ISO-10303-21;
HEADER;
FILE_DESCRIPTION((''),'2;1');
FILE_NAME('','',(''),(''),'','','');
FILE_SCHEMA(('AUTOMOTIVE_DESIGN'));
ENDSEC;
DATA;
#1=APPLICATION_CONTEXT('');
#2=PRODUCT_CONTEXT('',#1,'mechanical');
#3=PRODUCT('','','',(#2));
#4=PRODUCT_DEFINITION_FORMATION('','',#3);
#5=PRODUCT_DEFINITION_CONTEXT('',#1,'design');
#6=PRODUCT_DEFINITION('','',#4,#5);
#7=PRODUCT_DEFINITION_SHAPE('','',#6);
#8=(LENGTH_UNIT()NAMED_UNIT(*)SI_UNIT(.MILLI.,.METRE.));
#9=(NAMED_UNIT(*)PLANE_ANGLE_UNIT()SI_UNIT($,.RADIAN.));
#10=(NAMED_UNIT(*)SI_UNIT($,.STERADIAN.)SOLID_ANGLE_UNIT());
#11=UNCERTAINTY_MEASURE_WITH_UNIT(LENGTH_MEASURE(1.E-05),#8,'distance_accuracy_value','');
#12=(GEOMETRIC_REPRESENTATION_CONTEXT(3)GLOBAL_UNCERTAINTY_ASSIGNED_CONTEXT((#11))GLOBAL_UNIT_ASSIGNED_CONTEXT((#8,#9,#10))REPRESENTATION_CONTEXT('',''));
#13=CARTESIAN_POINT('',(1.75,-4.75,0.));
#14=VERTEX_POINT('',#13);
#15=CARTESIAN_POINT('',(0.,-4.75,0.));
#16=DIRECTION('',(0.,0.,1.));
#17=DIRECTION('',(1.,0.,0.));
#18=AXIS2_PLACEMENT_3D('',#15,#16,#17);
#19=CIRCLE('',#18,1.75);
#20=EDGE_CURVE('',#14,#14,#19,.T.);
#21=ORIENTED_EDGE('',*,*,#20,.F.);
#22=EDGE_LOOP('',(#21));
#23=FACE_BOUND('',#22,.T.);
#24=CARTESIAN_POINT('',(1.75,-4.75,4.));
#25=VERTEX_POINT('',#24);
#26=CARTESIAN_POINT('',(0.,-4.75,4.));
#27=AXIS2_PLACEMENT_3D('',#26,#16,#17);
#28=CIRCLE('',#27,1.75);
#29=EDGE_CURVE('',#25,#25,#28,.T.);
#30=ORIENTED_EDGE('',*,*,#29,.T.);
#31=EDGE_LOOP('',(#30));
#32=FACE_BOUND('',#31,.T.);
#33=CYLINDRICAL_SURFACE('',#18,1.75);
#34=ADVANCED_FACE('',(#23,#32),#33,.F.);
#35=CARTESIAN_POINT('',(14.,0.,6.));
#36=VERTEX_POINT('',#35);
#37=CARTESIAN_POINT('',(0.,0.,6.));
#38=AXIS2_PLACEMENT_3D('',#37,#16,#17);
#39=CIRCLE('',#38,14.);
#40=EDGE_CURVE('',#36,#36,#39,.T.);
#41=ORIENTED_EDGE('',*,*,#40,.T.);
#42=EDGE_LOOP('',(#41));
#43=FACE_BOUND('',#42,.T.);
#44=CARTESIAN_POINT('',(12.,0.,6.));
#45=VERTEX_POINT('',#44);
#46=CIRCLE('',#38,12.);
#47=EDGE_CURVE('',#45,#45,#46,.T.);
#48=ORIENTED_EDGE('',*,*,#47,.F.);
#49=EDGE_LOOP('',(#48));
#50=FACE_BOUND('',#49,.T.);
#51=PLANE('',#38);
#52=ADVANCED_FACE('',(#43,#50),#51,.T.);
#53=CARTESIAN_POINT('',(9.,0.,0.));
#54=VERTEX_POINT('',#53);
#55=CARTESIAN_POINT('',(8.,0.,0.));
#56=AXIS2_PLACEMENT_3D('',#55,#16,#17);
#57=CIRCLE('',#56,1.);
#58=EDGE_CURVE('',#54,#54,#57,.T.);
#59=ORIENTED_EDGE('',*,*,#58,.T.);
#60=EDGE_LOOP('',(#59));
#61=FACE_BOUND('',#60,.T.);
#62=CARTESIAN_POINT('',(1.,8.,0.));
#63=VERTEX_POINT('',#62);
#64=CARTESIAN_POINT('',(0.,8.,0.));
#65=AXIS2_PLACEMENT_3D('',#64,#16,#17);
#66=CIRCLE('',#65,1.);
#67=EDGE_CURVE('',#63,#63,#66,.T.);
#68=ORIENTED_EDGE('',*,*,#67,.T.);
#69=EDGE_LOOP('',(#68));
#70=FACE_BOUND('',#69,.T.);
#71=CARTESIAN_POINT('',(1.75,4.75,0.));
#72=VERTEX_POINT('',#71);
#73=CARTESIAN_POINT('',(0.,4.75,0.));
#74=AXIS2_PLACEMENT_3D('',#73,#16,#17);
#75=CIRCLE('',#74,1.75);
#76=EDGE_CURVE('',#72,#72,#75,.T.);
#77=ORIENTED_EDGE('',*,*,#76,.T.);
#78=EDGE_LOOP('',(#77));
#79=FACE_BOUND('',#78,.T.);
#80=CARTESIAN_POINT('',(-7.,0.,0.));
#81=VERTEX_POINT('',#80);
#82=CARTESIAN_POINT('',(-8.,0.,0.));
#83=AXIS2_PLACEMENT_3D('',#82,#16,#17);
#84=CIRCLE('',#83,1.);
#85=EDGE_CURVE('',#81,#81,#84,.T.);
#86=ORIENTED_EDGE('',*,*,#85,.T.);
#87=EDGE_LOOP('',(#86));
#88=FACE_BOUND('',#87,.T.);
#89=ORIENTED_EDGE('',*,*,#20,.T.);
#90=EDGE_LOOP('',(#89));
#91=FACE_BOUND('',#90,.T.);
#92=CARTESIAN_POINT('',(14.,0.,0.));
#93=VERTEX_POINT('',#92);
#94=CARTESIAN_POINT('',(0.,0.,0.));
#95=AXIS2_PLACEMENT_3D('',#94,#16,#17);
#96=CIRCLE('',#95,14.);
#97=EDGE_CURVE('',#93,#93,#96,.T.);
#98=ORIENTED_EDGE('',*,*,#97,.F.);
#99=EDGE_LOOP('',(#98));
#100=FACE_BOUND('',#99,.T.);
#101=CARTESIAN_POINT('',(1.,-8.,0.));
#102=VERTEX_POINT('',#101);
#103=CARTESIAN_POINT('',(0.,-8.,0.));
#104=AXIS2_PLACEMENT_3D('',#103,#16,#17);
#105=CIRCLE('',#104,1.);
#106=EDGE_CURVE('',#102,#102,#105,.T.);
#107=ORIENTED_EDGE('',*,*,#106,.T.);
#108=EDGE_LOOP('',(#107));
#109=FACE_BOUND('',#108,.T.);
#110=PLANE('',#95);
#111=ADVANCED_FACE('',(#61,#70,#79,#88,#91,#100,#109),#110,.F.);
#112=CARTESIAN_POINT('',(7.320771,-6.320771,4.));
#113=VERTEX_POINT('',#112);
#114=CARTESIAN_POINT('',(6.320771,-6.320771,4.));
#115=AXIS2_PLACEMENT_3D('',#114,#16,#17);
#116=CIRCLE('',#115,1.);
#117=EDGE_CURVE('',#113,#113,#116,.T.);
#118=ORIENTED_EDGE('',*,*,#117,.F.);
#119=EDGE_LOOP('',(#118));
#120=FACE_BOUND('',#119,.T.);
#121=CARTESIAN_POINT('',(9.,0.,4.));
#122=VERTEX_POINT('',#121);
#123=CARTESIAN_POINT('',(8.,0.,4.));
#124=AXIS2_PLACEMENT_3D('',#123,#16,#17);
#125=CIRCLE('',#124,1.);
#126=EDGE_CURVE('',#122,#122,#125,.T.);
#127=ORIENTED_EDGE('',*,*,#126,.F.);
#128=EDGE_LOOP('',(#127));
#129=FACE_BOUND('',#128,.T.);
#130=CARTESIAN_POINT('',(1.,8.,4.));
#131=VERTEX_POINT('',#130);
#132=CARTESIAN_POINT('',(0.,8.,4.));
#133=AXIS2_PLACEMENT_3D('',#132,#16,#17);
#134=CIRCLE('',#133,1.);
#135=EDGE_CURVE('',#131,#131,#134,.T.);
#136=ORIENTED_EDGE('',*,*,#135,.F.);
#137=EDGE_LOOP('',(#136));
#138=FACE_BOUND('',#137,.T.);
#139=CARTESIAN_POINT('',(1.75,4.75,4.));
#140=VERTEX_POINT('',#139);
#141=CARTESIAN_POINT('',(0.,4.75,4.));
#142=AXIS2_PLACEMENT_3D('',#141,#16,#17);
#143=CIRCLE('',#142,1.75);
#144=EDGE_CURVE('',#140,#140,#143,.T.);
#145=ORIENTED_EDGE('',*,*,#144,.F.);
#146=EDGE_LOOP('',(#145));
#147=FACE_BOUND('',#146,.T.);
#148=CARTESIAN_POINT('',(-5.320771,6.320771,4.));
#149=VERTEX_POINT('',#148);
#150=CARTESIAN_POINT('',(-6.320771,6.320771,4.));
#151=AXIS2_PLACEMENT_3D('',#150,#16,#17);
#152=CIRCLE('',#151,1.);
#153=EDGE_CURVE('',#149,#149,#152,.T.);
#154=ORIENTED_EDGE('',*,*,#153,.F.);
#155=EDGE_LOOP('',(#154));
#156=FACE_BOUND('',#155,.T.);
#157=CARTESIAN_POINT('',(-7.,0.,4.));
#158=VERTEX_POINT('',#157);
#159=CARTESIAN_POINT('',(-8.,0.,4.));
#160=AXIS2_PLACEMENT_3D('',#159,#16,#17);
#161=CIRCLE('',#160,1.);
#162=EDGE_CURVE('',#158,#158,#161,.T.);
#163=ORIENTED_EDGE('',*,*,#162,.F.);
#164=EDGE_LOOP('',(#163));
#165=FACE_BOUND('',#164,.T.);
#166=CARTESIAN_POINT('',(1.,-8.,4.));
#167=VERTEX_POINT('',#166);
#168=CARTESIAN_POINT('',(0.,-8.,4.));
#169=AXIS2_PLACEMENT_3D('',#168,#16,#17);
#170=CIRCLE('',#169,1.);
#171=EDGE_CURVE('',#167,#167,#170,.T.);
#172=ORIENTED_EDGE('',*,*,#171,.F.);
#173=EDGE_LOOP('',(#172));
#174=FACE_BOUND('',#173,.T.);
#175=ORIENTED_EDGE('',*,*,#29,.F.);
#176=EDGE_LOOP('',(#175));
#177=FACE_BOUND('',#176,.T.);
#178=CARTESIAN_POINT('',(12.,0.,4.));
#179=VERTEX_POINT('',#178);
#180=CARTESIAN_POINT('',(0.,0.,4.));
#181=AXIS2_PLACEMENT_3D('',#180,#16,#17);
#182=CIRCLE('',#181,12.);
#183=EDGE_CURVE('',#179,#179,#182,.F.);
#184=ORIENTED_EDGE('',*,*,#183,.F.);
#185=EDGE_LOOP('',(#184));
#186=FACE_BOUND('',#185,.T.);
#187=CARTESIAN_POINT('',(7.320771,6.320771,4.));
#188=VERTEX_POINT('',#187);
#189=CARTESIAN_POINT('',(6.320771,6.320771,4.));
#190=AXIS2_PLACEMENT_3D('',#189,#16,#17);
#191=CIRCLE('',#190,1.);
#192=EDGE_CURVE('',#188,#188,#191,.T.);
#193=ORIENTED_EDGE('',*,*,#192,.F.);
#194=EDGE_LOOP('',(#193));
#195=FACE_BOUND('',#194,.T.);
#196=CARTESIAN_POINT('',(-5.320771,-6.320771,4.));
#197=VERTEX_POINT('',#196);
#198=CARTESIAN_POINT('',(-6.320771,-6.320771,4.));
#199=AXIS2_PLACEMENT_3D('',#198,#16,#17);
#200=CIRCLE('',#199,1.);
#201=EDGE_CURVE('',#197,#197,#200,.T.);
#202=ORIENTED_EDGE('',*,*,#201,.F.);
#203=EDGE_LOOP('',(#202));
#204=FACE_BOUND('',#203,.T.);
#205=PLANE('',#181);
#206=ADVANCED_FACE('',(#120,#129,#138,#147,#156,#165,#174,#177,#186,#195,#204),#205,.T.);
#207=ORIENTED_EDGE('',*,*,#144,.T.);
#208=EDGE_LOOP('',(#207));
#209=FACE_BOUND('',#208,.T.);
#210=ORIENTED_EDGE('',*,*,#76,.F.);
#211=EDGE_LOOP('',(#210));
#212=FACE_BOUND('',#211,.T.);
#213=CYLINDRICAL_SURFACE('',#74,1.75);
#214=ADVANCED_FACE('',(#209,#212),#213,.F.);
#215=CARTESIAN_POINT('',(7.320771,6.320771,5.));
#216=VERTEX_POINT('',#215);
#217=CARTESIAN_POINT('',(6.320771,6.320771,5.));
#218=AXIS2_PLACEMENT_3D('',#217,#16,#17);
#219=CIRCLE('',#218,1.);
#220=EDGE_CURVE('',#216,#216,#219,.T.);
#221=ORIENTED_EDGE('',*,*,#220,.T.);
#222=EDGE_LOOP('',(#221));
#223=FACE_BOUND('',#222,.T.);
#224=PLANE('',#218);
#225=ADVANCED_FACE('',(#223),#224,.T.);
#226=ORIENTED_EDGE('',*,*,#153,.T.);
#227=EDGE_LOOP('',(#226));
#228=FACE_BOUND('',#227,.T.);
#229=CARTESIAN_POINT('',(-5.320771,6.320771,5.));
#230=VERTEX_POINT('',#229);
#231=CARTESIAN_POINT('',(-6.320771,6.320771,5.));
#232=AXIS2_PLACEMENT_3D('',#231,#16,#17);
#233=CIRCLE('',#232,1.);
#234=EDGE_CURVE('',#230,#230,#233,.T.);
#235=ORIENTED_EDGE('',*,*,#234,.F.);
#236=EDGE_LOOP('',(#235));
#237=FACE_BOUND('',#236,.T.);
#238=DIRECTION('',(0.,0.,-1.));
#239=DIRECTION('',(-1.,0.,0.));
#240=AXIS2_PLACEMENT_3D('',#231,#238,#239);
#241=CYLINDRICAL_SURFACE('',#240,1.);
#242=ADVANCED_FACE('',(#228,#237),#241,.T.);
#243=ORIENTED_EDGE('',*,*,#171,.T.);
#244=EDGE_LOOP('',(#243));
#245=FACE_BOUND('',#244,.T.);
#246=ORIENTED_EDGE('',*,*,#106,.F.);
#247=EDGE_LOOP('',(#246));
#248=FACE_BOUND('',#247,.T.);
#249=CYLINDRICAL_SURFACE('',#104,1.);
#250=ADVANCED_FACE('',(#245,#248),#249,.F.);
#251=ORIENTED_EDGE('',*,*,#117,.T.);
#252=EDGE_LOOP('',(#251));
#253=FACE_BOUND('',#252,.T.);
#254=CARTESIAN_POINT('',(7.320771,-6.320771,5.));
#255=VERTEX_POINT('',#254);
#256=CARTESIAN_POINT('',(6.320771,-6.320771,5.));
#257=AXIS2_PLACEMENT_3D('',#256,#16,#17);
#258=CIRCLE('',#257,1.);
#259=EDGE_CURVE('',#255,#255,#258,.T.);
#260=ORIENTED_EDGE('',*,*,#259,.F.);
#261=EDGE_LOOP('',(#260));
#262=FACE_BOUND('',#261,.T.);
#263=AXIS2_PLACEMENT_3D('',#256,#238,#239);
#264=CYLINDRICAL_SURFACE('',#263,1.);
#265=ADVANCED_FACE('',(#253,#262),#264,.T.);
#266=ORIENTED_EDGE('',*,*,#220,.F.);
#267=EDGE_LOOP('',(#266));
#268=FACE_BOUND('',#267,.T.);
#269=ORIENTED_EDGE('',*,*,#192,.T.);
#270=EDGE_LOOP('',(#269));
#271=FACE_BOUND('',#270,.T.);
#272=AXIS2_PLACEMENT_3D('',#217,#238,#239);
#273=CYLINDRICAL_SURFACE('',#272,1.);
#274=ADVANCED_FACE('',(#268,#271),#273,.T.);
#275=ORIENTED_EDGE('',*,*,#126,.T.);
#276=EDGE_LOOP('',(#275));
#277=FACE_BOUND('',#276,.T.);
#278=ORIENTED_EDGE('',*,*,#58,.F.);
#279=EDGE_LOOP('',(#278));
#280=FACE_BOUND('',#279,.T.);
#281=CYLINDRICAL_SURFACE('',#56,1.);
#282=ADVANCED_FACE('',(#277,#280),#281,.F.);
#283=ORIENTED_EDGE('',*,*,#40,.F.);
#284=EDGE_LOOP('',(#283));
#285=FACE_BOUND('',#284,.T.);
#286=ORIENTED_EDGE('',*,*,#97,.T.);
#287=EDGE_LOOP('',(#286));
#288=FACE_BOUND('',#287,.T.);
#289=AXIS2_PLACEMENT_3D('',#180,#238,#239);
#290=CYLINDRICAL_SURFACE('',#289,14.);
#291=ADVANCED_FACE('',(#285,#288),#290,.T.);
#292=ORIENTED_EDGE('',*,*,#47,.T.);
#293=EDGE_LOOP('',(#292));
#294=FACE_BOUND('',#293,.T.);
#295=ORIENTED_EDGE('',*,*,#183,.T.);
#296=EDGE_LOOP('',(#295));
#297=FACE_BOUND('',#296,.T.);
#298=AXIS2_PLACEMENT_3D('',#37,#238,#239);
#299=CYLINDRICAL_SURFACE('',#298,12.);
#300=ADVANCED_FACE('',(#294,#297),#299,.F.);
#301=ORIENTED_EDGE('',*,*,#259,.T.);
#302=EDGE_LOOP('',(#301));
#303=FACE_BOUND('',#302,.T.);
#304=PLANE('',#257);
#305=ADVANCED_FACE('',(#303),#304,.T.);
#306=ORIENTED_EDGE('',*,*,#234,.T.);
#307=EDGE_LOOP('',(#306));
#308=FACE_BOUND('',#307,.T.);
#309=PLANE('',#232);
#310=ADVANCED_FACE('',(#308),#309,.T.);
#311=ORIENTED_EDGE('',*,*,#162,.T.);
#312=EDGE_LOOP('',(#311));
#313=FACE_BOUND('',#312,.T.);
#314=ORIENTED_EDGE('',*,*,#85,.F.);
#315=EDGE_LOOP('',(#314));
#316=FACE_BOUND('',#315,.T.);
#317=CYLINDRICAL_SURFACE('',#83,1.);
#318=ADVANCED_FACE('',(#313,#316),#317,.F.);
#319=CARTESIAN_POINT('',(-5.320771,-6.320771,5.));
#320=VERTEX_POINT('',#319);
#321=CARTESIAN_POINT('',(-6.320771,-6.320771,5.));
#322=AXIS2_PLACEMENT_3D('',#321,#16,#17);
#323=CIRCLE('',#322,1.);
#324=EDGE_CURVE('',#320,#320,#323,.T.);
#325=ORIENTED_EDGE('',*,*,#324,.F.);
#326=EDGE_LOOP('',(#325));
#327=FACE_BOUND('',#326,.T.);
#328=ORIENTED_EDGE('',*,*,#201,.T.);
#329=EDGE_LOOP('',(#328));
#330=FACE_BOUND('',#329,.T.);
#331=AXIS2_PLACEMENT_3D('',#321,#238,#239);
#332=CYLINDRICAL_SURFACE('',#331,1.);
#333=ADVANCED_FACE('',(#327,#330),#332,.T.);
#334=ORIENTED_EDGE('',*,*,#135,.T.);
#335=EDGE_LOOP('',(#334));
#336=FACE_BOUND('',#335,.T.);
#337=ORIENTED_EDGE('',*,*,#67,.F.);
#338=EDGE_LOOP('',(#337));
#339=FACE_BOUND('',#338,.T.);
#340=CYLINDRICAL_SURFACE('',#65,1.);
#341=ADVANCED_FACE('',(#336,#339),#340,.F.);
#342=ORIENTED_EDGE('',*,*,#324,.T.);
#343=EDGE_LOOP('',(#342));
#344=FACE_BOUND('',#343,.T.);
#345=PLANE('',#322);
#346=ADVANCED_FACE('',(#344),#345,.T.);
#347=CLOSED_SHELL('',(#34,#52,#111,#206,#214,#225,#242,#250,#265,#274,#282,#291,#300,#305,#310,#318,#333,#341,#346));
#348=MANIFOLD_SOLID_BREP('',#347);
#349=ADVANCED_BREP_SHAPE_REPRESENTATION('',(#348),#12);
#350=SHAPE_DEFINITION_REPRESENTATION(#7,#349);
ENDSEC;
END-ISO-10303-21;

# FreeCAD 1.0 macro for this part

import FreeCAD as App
import Part
import Sketcher
from FreeCAD import Vector
Q = App.Units.Quantity

doc = App.newDocument("Part")
body = doc.addObject("PartDesign::Body", "Body")

# Sketch on XY plane
sketch1 = body.newObject("Sketcher::SketchObject", "Sketch")
sketch1.AttachmentSupport = (doc.getObject("XY_Plane"), [""])
sketch1.MapMode = "FlatFace"
sketch1.addGeometry(Part.Circle(Vector(0, 0, 0), Vector(0, 0, 1), 14), False)
sketch1.addConstraint([
    Sketcher.Constraint("Coincident", 0, 3, -1, 1),
    Sketcher.Constraint("Diameter", 0, Q("28 mm")),
])
pad1 = body.newObject("PartDesign::Pad", "Pad")
pad1.Profile = sketch1
pad1.Length = 4

# Sketch on XY plane
sketch2 = body.newObject("Sketcher::SketchObject", "Sketch001")
sketch2.AttachmentSupport = (doc.getObject("XY_Plane"), [""])
sketch2.MapMode = "FlatFace"
sketch2.AttachmentOffset = App.Placement(Vector(0, 0, 4), App.Rotation())
sketch2.addGeometry([
    Part.Circle(Vector(0, 0, 0), Vector(0, 0, 1), 14),
    Part.Circle(Vector(0, 0, 0), Vector(0, 0, 1), 12),
], False)
sketch2.addConstraint([
    Sketcher.Constraint("Coincident", 0, 3, -1, 1),
    Sketcher.Constraint("Coincident", 1, 3, -1, 1),
    Sketcher.Constraint("Diameter", 0, Q("28 mm")),
    Sketcher.Constraint("Diameter", 1, Q("24 mm")),
])
pad2 = body.newObject("PartDesign::Pad", "Pad001")
pad2.Profile = sketch2
pad2.Length = 2

# Sketch on XY plane
sketch3 = body.newObject("Sketcher::SketchObject", "Sketch002")
sketch3.AttachmentSupport = (doc.getObject("XY_Plane"), [""])
sketch3.MapMode = "FlatFace"
sketch3.AttachmentOffset = App.Placement(Vector(0, 0, 4), App.Rotation())
sketch3.addGeometry([
    Part.Circle(Vector(0, 8, 0), Vector(0, 0, 1), 1),
    Part.Circle(Vector(8, 0, 0), Vector(0, 0, 1), 1),
    Part.Circle(Vector(0, -8, 0), Vector(0, 0, 1), 1),
    Part.Circle(Vector(-8, 0, 0), Vector(0, 0, 1), 1),
], False)
sketch3.addConstraint([
    Sketcher.Constraint("Equal", 0, 1),
    Sketcher.Constraint("Equal", 1, 2),
    Sketcher.Constraint("Equal", 2, 3),
    Sketcher.Constraint("Symmetric", 0, 3, 2, 3, -1, 1),
    Sketcher.Constraint("Symmetric", 1, 3, 3, 3, -1, 1),
    Sketcher.Constraint("PointOnObject", 0, 3, -2),
    Sketcher.Constraint("PointOnObject", 1, 3, -1),
    Sketcher.Constraint("Diameter", 0, Q("2 mm")),
    Sketcher.Constraint("DistanceY", -1, 1, 0, 3, Q("8 mm")),
    Sketcher.Constraint("DistanceX", -1, 1, 1, 3, Q("8 mm")),
])
pocket1 = body.newObject("PartDesign::Pocket", "Pocket")
pocket1.Profile = sketch3
pocket1.Type = "ThroughAll"

# Sketch on XY plane
sketch4 = body.newObject("Sketcher::SketchObject", "Sketch003")
sketch4.AttachmentSupport = (doc.getObject("XY_Plane"), [""])
sketch4.MapMode = "FlatFace"
sketch4.AttachmentOffset = App.Placement(Vector(0, 0, 4), App.Rotation())
sketch4.addGeometry([
    Part.Circle(Vector(0, 4.8, 0), Vector(0, 0, 1), 1.8),
    Part.Circle(Vector(0, -4.8, 0), Vector(0, 0, 1), 1.8),
], False)
sketch4.addConstraint([
    Sketcher.Constraint("Equal", 0, 1),
    Sketcher.Constraint("Symmetric", 0, 3, 1, 3, -1, 1),
    Sketcher.Constraint("PointOnObject", 0, 3, -2),
    Sketcher.Constraint("Diameter", 0, Q("3.5 mm")),
    Sketcher.Constraint("DistanceY", 1, 3, 0, 3, Q("9.5 mm")),
])
pocket2 = body.newObject("PartDesign::Pocket", "Pocket001")
pocket2.Profile = sketch4
pocket2.Type = "ThroughAll"

# Sketch on XY plane
sketch5 = body.newObject("Sketcher::SketchObject", "Sketch004")
sketch5.AttachmentSupport = (doc.getObject("XY_Plane"), [""])
sketch5.MapMode = "FlatFace"
sketch5.AttachmentOffset = App.Placement(Vector(0, 0, 4), App.Rotation())
sketch5.addGeometry([
    Part.Circle(Vector(-6.3, -6.3, 0), Vector(0, 0, 1), 1),
    Part.Circle(Vector(-6.3, 6.3, 0), Vector(0, 0, 1), 1),
    Part.Circle(Vector(6.3, 6.3, 0), Vector(0, 0, 1), 1),
    Part.Circle(Vector(6.3, -6.3, 0), Vector(0, 0, 1), 1),
], False)
sketch5.addConstraint([
    Sketcher.Constraint("Equal", 0, 1),
    Sketcher.Constraint("Equal", 1, 2),
    Sketcher.Constraint("Equal", 2, 3),
    Sketcher.Constraint("Symmetric", 0, 3, 2, 3, -1, 1),
    Sketcher.Constraint("Symmetric", 1, 3, 3, 3, -1, 1),
    Sketcher.Constraint("Symmetric", 1, 3, 2, 3, -2),
    Sketcher.Constraint("Diameter", 0, Q("2 mm")),
    Sketcher.Constraint("DistanceX", 0, 3, -1, 1, Q("6.320771 mm")),
    Sketcher.Constraint("DistanceY", 0, 3, -1, 1, Q("6.320771 mm")),
])
pad3 = body.newObject("PartDesign::Pad", "Pad002")
pad3.Profile = sketch5
pad3.Length = 1

doc.recompute()
